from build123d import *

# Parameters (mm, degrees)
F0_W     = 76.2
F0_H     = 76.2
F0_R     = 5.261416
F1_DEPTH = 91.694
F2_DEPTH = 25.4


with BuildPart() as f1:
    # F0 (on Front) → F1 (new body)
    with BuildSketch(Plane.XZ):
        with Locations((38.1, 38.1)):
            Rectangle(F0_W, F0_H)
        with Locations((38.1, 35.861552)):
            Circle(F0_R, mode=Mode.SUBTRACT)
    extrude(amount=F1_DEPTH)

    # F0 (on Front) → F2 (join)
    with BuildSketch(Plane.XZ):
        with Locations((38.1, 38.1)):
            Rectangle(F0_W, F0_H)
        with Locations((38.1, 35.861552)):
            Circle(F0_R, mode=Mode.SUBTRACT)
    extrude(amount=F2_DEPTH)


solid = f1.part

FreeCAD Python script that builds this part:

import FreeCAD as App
import Part
import Sketcher
from FreeCAD import Vector
Q = App.Units.Quantity


def add_polygon(sketch, points):
    """Adds a closed chain of lines whose ends are joined by coincident constraints."""
    first, n = sketch.GeometryCount, len(points)
    for a, b in zip(points, points[1:] + points[:1]):
        sketch.addGeometry(Part.LineSegment(App.Vector(*a, 0), App.Vector(*b, 0)), False)
    for i in range(n):
        sketch.addConstraint(Sketcher.Constraint("Coincident", first + i, 2, first + (i + 1) % n, 1))

doc = App.newDocument("Part")
body = doc.addObject("PartDesign::Body", "Body")

sketch1 = body.newObject("Sketcher::SketchObject", "Sketch")
sketch1.AttachmentSupport = (doc.getObject("XZ_Plane"), [""])
sketch1.MapMode = "FlatFace"
add_polygon(sketch1, [(0, 76.2), (0, 0), (76.2, 0), (76.2, 76.2)])
sketch1.addGeometry(Part.Circle(Vector(38.1, 35.861552, 0), Vector(0, 0, 1), 5.261416), False)
sketch1.addConstraint([
    Sketcher.Constraint("Vertical", 0),
    Sketcher.Constraint("Horizontal", 1),
    Sketcher.Constraint("Vertical", 2),
    Sketcher.Constraint("Horizontal", 3),
    Sketcher.Constraint("Coincident", 0, 2, -1, 1),
    Sketcher.Constraint("Equal", 3, 0),
    Sketcher.Constraint("DistanceX", 1, 1, 1, 2, Q("3 in")),
    Sketcher.Constraint("DistanceX", -1, 1, 4, 3, Q("1.5 in")),
    Sketcher.Constraint("Diameter", 4, Q("10.522832 mm")),
    Sketcher.Constraint("DistanceY", -1, 1, 4, 3, Q("35.861552 mm")),
])
pad1 = body.newObject("PartDesign::Pad", "Pad")
pad1.Profile = sketch1
pad1.Length = Q("3.61 in")

sketch2 = body.newObject("Sketcher::SketchObject", "Sketch001")
sketch2.AttachmentSupport = (doc.getObject("XZ_Plane"), [""])
sketch2.MapMode = "FlatFace"
add_polygon(sketch2, [(0, 76.2), (0, 0), (76.2, 0), (76.2, 76.2)])
sketch2.addGeometry(Part.Circle(Vector(38.1, 35.861552, 0), Vector(0, 0, 1), 5.261416), False)
sketch2.addConstraint([
    Sketcher.Constraint("Vertical", 0),
    Sketcher.Constraint("Horizontal", 1),
    Sketcher.Constraint("Vertical", 2),
    Sketcher.Constraint("Horizontal", 3),
    Sketcher.Constraint("Coincident", 0, 2, -1, 1),
    Sketcher.Constraint("Equal", 3, 0),
    Sketcher.Constraint("DistanceX", 1, 1, 1, 2, Q("3 in")),
    Sketcher.Constraint("DistanceX", -1, 1, 4, 3, Q("1.5 in")),
    Sketcher.Constraint("Diameter", 4, Q("10.522832 mm")),
    Sketcher.Constraint("DistanceY", -1, 1, 4, 3, Q("35.861552 mm")),
])
pad2 = body.newObject("PartDesign::Pad", "Pad001")
pad2.Profile = sketch2
pad2.Length = Q("1 in")

doc.recompute()
